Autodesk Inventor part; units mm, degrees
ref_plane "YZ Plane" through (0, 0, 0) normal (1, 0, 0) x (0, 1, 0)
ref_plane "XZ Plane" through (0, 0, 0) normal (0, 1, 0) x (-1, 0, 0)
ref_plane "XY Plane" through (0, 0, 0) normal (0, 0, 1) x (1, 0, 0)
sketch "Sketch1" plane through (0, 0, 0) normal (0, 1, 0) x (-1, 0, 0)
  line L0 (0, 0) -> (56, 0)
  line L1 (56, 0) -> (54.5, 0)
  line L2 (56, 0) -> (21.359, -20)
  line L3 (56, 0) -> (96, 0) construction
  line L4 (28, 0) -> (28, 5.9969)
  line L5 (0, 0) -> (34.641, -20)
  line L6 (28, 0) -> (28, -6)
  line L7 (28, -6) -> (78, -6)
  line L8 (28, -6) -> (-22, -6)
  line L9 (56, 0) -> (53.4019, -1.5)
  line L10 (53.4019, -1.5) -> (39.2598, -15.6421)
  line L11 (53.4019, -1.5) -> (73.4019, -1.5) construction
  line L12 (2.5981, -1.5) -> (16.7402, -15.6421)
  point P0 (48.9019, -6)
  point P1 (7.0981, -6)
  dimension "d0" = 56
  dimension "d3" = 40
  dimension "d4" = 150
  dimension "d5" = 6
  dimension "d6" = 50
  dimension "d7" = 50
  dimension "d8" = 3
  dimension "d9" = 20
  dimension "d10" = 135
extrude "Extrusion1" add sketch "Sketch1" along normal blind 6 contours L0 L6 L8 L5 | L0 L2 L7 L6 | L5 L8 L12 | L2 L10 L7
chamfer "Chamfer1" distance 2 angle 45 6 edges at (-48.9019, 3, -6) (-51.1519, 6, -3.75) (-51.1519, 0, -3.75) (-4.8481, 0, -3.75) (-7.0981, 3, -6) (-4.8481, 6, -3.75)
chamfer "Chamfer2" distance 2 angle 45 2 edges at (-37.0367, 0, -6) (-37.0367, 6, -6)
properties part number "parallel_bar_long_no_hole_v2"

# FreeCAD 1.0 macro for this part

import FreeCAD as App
import Part
import Sketcher
Q = App.Units.Quantity


def edges_at(feature, points):
    """Names of the edges that pass closest to the given points."""
    edges = feature.Shape.Edges
    near = lambda p: min(range(len(edges)), key=lambda i: edges[i].distToShape(Part.Vertex(*p))[0])
    return sorted({f"Edge{near(p) + 1}" for p in points})

doc = App.newDocument("Part")
body = doc.addObject("PartDesign::Body", "Body")

sketch1 = body.newObject("Sketcher::SketchObject", "Sketch")
sketch1.AttachmentSupport = (doc.getObject("XZ_Plane"), [""])
sketch1.MapMode = "FlatFace"
sketch1.addGeometry(Part.LineSegment(App.Vector(0, 0, 0), App.Vector(-2.598094, -1.500011, 0)), False)
sketch1.addGeometry(Part.LineSegment(App.Vector(-2.5981, -1.5, 0), App.Vector(-7.0981, -6, 0)), False)
sketch1.addGeometry(Part.LineSegment(App.Vector(-7.0981, -6, 0), App.Vector(-48.9019, -6, 0)), False)
sketch1.addGeometry(Part.LineSegment(App.Vector(-48.9019, -6, 0), App.Vector(-53.4019, -1.5, 0)), False)
sketch1.addGeometry(Part.LineSegment(App.Vector(-53.401906, -1.500011, 0), App.Vector(-56, 0, 0)), False)
sketch1.addGeometry(Part.LineSegment(App.Vector(-56, 0, 0), App.Vector(0, 0, 0)), False)
sketch1.addConstraint(Sketcher.Constraint("Coincident", 0, 2, 1, 1))
sketch1.addConstraint(Sketcher.Constraint("Coincident", 1, 2, 2, 1))
sketch1.addConstraint(Sketcher.Constraint("Coincident", 2, 2, 3, 1))
sketch1.addConstraint(Sketcher.Constraint("Coincident", 3, 2, 4, 1))
sketch1.addConstraint(Sketcher.Constraint("Coincident", 4, 2, 5, 1))
sketch1.addConstraint(Sketcher.Constraint("Coincident", 5, 2, 0, 1))
sketch1.addConstraint(Sketcher.Constraint("Horizontal", 2))
sketch1.addConstraint(Sketcher.Constraint("Horizontal", 5))
sketch1.addConstraint(Sketcher.Constraint("Coincident", 5, 2, -1, 1))
sketch1.addConstraint(Sketcher.Constraint("Perpendicular", 1, 3))
sketch1.addConstraint(Sketcher.Constraint("Horizontal", 0, 2, 3, 2))
sketch1.addConstraint(Sketcher.Constraint("Equal", 1, 3))
sketch1.addConstraint(Sketcher.Constraint("Equal", 0, 4))
sketch1.addConstraint(Sketcher.Constraint("DistanceX", 5, 1, 5, 2, 56.0))
sketch1.addConstraint(Sketcher.Constraint("Angle", 0, Q("-150 deg")))
sketch1.addConstraint(Sketcher.Constraint("Distance", 0, 3.0))
sketch1.addConstraint(Sketcher.Constraint("DistanceY", 1, 2, -1, 1, 6.0))
pad1 = body.newObject("PartDesign::Pad", "Pad")
pad1.Profile = sketch1
pad1.Length = 6
pad1.Reversed = True
doc.recompute()

chamfer = body.newObject("PartDesign::Chamfer", "Chamfer")
chamfer.Base = (pad1, edges_at(pad1, [
    (-48.902, 3, -6),
    (-51.152, 6, -3.75),
    (-51.152, 0, -3.75),
    (-4.848, 0, -3.75),
    (-7.098, 3, -6),
    (-4.848, 6, -3.75),
]))
chamfer.Size = 2
doc.recompute()

chamfer2 = body.newObject("PartDesign::Chamfer", "Chamfer001")
chamfer2.Base = (chamfer, edges_at(chamfer, [(-37.037, 0, -6), (-37.037, 6, -6)]))
chamfer2.Size = 2

doc.recompute()
